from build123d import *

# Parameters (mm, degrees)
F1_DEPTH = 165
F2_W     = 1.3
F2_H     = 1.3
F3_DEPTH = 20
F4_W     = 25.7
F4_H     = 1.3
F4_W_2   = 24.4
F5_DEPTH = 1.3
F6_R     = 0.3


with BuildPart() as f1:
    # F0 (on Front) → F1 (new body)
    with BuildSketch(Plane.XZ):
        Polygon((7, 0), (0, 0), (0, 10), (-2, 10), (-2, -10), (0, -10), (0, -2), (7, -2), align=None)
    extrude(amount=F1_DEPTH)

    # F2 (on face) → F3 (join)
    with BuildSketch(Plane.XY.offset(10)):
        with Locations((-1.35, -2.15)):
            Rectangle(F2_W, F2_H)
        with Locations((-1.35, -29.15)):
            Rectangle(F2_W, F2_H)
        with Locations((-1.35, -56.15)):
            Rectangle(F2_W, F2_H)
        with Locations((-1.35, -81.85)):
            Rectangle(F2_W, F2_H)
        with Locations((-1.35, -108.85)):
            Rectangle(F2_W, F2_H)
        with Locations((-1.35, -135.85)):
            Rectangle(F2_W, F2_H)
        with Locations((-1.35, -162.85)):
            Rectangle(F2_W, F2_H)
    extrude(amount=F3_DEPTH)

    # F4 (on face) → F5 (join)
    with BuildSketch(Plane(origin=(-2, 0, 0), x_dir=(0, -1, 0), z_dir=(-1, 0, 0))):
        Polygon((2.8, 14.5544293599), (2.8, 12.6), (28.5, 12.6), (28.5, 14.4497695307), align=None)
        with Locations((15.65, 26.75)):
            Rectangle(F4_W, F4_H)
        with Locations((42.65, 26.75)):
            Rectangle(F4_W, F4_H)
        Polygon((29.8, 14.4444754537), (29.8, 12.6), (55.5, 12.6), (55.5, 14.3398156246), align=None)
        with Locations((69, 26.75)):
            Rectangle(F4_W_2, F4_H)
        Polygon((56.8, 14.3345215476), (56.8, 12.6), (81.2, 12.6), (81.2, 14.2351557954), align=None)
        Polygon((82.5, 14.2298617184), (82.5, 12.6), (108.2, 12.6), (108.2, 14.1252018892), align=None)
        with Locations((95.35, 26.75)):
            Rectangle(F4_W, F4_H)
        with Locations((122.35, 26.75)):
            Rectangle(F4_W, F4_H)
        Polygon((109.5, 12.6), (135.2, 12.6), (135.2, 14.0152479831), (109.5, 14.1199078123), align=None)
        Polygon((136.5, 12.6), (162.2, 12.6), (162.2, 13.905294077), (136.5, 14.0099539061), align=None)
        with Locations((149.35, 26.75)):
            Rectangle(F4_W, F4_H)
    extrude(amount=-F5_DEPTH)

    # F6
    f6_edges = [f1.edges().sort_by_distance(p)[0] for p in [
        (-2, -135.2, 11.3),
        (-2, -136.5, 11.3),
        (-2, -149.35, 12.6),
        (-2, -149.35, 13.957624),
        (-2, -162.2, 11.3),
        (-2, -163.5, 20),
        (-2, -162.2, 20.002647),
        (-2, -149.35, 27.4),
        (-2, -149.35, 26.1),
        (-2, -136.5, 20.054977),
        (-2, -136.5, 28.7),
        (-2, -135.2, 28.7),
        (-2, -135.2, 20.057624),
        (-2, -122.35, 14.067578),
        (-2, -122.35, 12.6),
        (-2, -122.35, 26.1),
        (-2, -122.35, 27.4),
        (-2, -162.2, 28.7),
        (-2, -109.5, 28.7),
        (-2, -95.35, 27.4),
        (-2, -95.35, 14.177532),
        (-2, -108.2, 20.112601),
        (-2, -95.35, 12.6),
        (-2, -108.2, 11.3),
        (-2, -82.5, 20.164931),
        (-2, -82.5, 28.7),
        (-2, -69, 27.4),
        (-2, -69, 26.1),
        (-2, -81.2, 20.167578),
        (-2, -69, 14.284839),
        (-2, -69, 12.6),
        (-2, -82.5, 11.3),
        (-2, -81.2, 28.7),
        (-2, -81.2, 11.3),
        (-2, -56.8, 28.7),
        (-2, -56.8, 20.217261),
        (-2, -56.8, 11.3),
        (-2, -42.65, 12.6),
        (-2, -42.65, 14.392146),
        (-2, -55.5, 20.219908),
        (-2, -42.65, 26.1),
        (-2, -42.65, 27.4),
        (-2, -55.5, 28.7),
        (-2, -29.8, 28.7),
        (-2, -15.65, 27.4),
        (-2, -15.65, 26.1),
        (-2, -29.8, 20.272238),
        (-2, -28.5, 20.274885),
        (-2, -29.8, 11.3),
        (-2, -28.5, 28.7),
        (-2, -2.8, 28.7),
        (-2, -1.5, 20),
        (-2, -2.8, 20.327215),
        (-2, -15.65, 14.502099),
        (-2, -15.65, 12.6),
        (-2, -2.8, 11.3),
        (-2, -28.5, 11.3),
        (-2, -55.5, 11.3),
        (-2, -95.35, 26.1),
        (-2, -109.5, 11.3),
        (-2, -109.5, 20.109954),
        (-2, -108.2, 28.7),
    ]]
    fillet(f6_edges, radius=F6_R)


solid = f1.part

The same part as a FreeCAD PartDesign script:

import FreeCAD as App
import Part
import Sketcher
from FreeCAD import Vector
Q = App.Units.Quantity


def edges_at(feature, points):
    """Names of the edges that pass closest to the given points."""
    edges = feature.Shape.Edges
    near = lambda p: min(range(len(edges)), key=lambda i: edges[i].distToShape(Part.Vertex(*p))[0])
    return sorted({f"Edge{near(p) + 1}" for p in points})


def add_polygon(sketch, points):
    """Adds a closed chain of lines whose ends are joined by coincident constraints."""
    first, n = sketch.GeometryCount, len(points)
    for a, b in zip(points, points[1:] + points[:1]):
        sketch.addGeometry(Part.LineSegment(App.Vector(*a, 0), App.Vector(*b, 0)), False)
    for i in range(n):
        sketch.addConstraint(Sketcher.Constraint("Coincident", first + i, 2, first + (i + 1) % n, 1))

doc = App.newDocument("Part")
params = doc.addObject("Spreadsheet::Sheet", "Params")
for row, (alias, value) in enumerate([
    ("sketch1_width", "7 mm"),
    ("sketch1_width2", "2 mm"),
    ("sketch1_height", "10 mm"),
    ("pad1_length", "165 mm"),
    ("sketch2_width", "1.3 mm"),
    ("pad2_length", "20 mm"),
    ("sketch3_width", "25.7 mm"),
    ("sketch3_width2", "24.4 mm"),
    ("sketch3_height", "1.3 mm"),
    ("pad3_length", "1.3 mm"),
    ("fillet_radius", "0.3 mm"),
], start=1):
    params.set(f"A{row}", alias)
    params.set(f"B{row}", "=" + value)
    params.setAlias(f"B{row}", alias)

body = doc.addObject("PartDesign::Body", "Body")

sketch1 = doc.addObject("Sketcher::SketchObject", "Sketch")
body.addObject(sketch1)
sketch1.AttachmentSupport = (doc.XZ_Plane, [""])
sketch1.MapMode = "FlatFace"
add_polygon(sketch1, [(7, 0), (0, 0), (0, 10), (-2, 10), (-2, -10), (0, -10), (0, -2), (7, -2)])
sketch1.addConstraint(Sketcher.Constraint("Horizontal", 0))
sketch1.addConstraint(Sketcher.Constraint("Vertical", 1))
sketch1.addConstraint(Sketcher.Constraint("Horizontal", 2))
sketch1.addConstraint(Sketcher.Constraint("Vertical", 3))
sketch1.addConstraint(Sketcher.Constraint("Horizontal", 4))
sketch1.addConstraint(Sketcher.Constraint("Vertical", 5))
sketch1.addConstraint(Sketcher.Constraint("Horizontal", 6))
sketch1.addConstraint(Sketcher.Constraint("Vertical", 7))
sketch1.addConstraint(Sketcher.Constraint("Coincident", 0, 2, -1, 1))
sketch1.addConstraint(Sketcher.Constraint("Symmetric", 1, 2, 4, 2, -1, 1))
sketch1.addConstraint(Sketcher.Constraint("Equal", 4, 7))
sketch1.addConstraint(Sketcher.Constraint("DistanceX", 0, 2, 0, 1, Q("7 mm")))
sketch1.addConstraint(Sketcher.Constraint("DistanceX", 2, 2, 2, 1, Q("2 mm")))
sketch1.addConstraint(Sketcher.Constraint("DistanceY", 1, 1, 1, 2, Q("10 mm")))
sketch1.setExpression("Constraints[19]", "Params.sketch1_width")
sketch1.setExpression("Constraints[20]", "Params.sketch1_width2")
sketch1.setExpression("Constraints[21]", "Params.sketch1_height")
pad1 = doc.addObject("PartDesign::Pad", "Pad")
body.addObject(pad1)
pad1.Profile = sketch1
pad1.setExpression("Length", "Params.pad1_length")

sketch2 = doc.addObject("Sketcher::SketchObject", "Sketch001")
body.addObject(sketch2)
sketch2.AttachmentSupport = (doc.XY_Plane, [""])
sketch2.MapMode = "FlatFace"
sketch2.AttachmentOffset = App.Placement(Vector(0, 0, 10), App.Rotation())
add_polygon(sketch2, [(-2, -1.5), (-2, -2.8), (-0.7, -2.8), (-0.7, -1.5)])
add_polygon(sketch2, [(-2, -28.5), (-2, -29.8), (-0.7, -29.8), (-0.7, -28.5)])
add_polygon(sketch2, [(-2, -55.5), (-2, -56.8), (-0.7, -56.8), (-0.7, -55.5)])
add_polygon(sketch2, [(-2, -81.2), (-2, -82.5), (-0.7, -82.5), (-0.7, -81.2)])
add_polygon(sketch2, [(-2, -108.2), (-2, -109.5), (-0.7, -109.5), (-0.7, -108.2)])
add_polygon(sketch2, [(-2, -135.2), (-2, -136.5), (-0.7, -136.5), (-0.7, -135.2)])
add_polygon(sketch2, [(-2, -162.2), (-2, -163.5), (-0.7, -163.5), (-0.7, -162.2)])
sketch2.addConstraint(Sketcher.Constraint("Vertical", 0))
sketch2.addConstraint(Sketcher.Constraint("Horizontal", 1))
sketch2.addConstraint(Sketcher.Constraint("Vertical", 2))
sketch2.addConstraint(Sketcher.Constraint("Horizontal", 3))
sketch2.addConstraint(Sketcher.Constraint("Vertical", 4))
sketch2.addConstraint(Sketcher.Constraint("Horizontal", 5))
sketch2.addConstraint(Sketcher.Constraint("Vertical", 6))
sketch2.addConstraint(Sketcher.Constraint("Horizontal", 7))
sketch2.addConstraint(Sketcher.Constraint("Vertical", 8))
sketch2.addConstraint(Sketcher.Constraint("Horizontal", 9))
sketch2.addConstraint(Sketcher.Constraint("Vertical", 10))
sketch2.addConstraint(Sketcher.Constraint("Horizontal", 11))
sketch2.addConstraint(Sketcher.Constraint("Vertical", 12))
sketch2.addConstraint(Sketcher.Constraint("Horizontal", 13))
sketch2.addConstraint(Sketcher.Constraint("Vertical", 14))
sketch2.addConstraint(Sketcher.Constraint("Horizontal", 15))
sketch2.addConstraint(Sketcher.Constraint("Vertical", 16))
sketch2.addConstraint(Sketcher.Constraint("Horizontal", 17))
sketch2.addConstraint(Sketcher.Constraint("Vertical", 18))
sketch2.addConstraint(Sketcher.Constraint("Horizontal", 19))
sketch2.addConstraint(Sketcher.Constraint("Vertical", 20))
sketch2.addConstraint(Sketcher.Constraint("Horizontal", 21))
sketch2.addConstraint(Sketcher.Constraint("Vertical", 22))
sketch2.addConstraint(Sketcher.Constraint("Horizontal", 23))
sketch2.addConstraint(Sketcher.Constraint("Vertical", 24))
sketch2.addConstraint(Sketcher.Constraint("Horizontal", 25))
sketch2.addConstraint(Sketcher.Constraint("Vertical", 26))
sketch2.addConstraint(Sketcher.Constraint("Horizontal", 27))
sketch2.addConstraint(Sketcher.Constraint("Vertical", 3, 2, 4, 2))
sketch2.addConstraint(Sketcher.Constraint("Vertical", 2, 2, 5, 2))
sketch2.addConstraint(Sketcher.Constraint("Vertical", 7, 2, 8, 2))
sketch2.addConstraint(Sketcher.Constraint("Vertical", 6, 2, 9, 2))
sketch2.addConstraint(Sketcher.Constraint("Vertical", 11, 2, 12, 2))
sketch2.addConstraint(Sketcher.Constraint("Vertical", 10, 2, 13, 2))
sketch2.addConstraint(Sketcher.Constraint("Vertical", 15, 2, 16, 2))
sketch2.addConstraint(Sketcher.Constraint("Vertical", 14, 2, 17, 2))
sketch2.addConstraint(Sketcher.Constraint("Vertical", 19, 2, 20, 2))
sketch2.addConstraint(Sketcher.Constraint("Vertical", 18, 2, 21, 2))
sketch2.addConstraint(Sketcher.Constraint("Vertical", 23, 2, 24, 2))
sketch2.addConstraint(Sketcher.Constraint("Vertical", 22, 2, 25, 2))
sketch2.addConstraint(Sketcher.Constraint("Equal", 27, 0))
sketch2.addConstraint(Sketcher.Constraint("Equal", 2, 4))
sketch2.addConstraint(Sketcher.Constraint("Equal", 6, 8))
sketch2.addConstraint(Sketcher.Constraint("Equal", 10, 12))
sketch2.addConstraint(Sketcher.Constraint("Equal", 14, 16))
sketch2.addConstraint(Sketcher.Constraint("Equal", 18, 20))
sketch2.addConstraint(Sketcher.Constraint("Equal", 22, 24))
sketch2.addConstraint(Sketcher.Constraint("DistanceX", 1, 1, 1, 2, Q("1.3 mm")))
sketch2.addConstraint(Sketcher.Constraint("DistanceX", 0, 2, -1, 1, Q("2 mm")))
sketch2.addConstraint(Sketcher.Constraint("DistanceY", 4, 2, 0, 2, Q("27 mm")))
sketch2.addConstraint(Sketcher.Constraint("DistanceY", 8, 2, 4, 2, Q("27 mm")))
sketch2.addConstraint(Sketcher.Constraint("DistanceY", 12, 2, 11, 2, Q("27 mm")))
sketch2.addConstraint(Sketcher.Constraint("DistanceY", 16, 2, 12, 2, Q("27 mm")))
sketch2.addConstraint(Sketcher.Constraint("DistanceY", 20, 2, 16, 2, Q("27 mm")))
sketch2.addConstraint(Sketcher.Constraint("DistanceY", 24, 2, 20, 2, Q("27 mm")))
sketch2.addConstraint(Sketcher.Constraint("DistanceY", 0, 2, -1, 1, Q("2.8 mm")))
sketch2.setExpression("Constraints[75]", "Params.sketch2_width")
pad2 = doc.addObject("PartDesign::Pad", "Pad001")
body.addObject(pad2)
pad2.Profile = sketch2
pad2.setExpression("Length", "Params.pad2_length")

sketch3 = doc.addObject("Sketcher::SketchObject", "Sketch002")
body.addObject(sketch3)
sketch3.AttachmentSupport = (doc.YZ_Plane, [""])
sketch3.MapMode = "FlatFace"
sketch3.AttachmentOffset = App.Placement(Vector(0, 0, -2), App.Rotation())
add_polygon(sketch3, [(-2.8, 14.6), (-2.8, 12.6), (-28.5, 12.6), (-28.5, 14.4)])
add_polygon(sketch3, [(-2.8, 27.4), (-2.8, 26.1), (-28.5, 26.1), (-28.5, 27.4)])
add_polygon(sketch3, [(-29.8, 27.4), (-29.8, 26.1), (-55.5, 26.1), (-55.5, 27.4)])
add_polygon(sketch3, [(-29.8, 14.4), (-29.8, 12.6), (-55.5, 12.6), (-55.5, 14.3)])
add_polygon(sketch3, [(-56.8, 27.4), (-56.8, 26.1), (-81.2, 26.1), (-81.2, 27.4)])
add_polygon(sketch3, [(-56.8, 14.3), (-56.8, 12.6), (-81.2, 12.6), (-81.2, 14.2)])
add_polygon(sketch3, [(-82.5, 14.2), (-82.5, 12.6), (-108.2, 12.6), (-108.2, 14.1)])
add_polygon(sketch3, [(-82.5, 27.4), (-82.5, 26.1), (-108.2, 26.1), (-108.2, 27.4)])
add_polygon(sketch3, [(-109.5, 27.4), (-109.5, 26.1), (-135.2, 26.1), (-135.2, 27.4)])
add_polygon(sketch3, [(-109.5, 12.6), (-135.2, 12.6), (-135.2, 14), (-109.5, 14.1)])
add_polygon(sketch3, [(-136.5, 12.6), (-162.2, 12.6), (-162.2, 13.9), (-136.5, 14)])
add_polygon(sketch3, [(-136.5, 27.4), (-136.5, 26.1), (-162.2, 26.1), (-162.2, 27.4)])
sketch3.addConstraint(Sketcher.Constraint("Vertical", 0))
sketch3.addConstraint(Sketcher.Constraint("Horizontal", 1))
sketch3.addConstraint(Sketcher.Constraint("Vertical", 2))
sketch3.addConstraint(Sketcher.Constraint("Vertical", 4))
sketch3.addConstraint(Sketcher.Constraint("Horizontal", 5))
sketch3.addConstraint(Sketcher.Constraint("Vertical", 6))
sketch3.addConstraint(Sketcher.Constraint("Horizontal", 7))
sketch3.addConstraint(Sketcher.Constraint("Vertical", 8))
sketch3.addConstraint(Sketcher.Constraint("Horizontal", 9))
sketch3.addConstraint(Sketcher.Constraint("Vertical", 10))
sketch3.addConstraint(Sketcher.Constraint("Horizontal", 11))
sketch3.addConstraint(Sketcher.Constraint("Vertical", 12))
sketch3.addConstraint(Sketcher.Constraint("Horizontal", 13))
sketch3.addConstraint(Sketcher.Constraint("Vertical", 14))
sketch3.addConstraint(Sketcher.Constraint("Vertical", 16))
sketch3.addConstraint(Sketcher.Constraint("Horizontal", 17))
sketch3.addConstraint(Sketcher.Constraint("Vertical", 18))
sketch3.addConstraint(Sketcher.Constraint("Horizontal", 19))
sketch3.addConstraint(Sketcher.Constraint("Vertical", 20))
sketch3.addConstraint(Sketcher.Constraint("Horizontal", 21))
sketch3.addConstraint(Sketcher.Constraint("Vertical", 22))
sketch3.addConstraint(Sketcher.Constraint("Vertical", 24))
sketch3.addConstraint(Sketcher.Constraint("Horizontal", 25))
sketch3.addConstraint(Sketcher.Constraint("Vertical", 26))
sketch3.addConstraint(Sketcher.Constraint("Vertical", 28))
sketch3.addConstraint(Sketcher.Constraint("Horizontal", 29))
sketch3.addConstraint(Sketcher.Constraint("Vertical", 30))
sketch3.addConstraint(Sketcher.Constraint("Horizontal", 31))
sketch3.addConstraint(Sketcher.Constraint("Vertical", 32))
sketch3.addConstraint(Sketcher.Constraint("Horizontal", 33))
sketch3.addConstraint(Sketcher.Constraint("Vertical", 34))
sketch3.addConstraint(Sketcher.Constraint("Horizontal", 35))
sketch3.addConstraint(Sketcher.Constraint("Horizontal", 36))
sketch3.addConstraint(Sketcher.Constraint("Vertical", 37))
sketch3.addConstraint(Sketcher.Constraint("Vertical", 39))
sketch3.addConstraint(Sketcher.Constraint("Horizontal", 40))
sketch3.addConstraint(Sketcher.Constraint("Vertical", 41))
sketch3.addConstraint(Sketcher.Constraint("Vertical", 43))
sketch3.addConstraint(Sketcher.Constraint("Vertical", 44))
sketch3.addConstraint(Sketcher.Constraint("Horizontal", 45))
sketch3.addConstraint(Sketcher.Constraint("Vertical", 46))
sketch3.addConstraint(Sketcher.Constraint("Horizontal", 47))
sketch3.addConstraint(Sketcher.Constraint("Parallel", 3, 15))
sketch3.addConstraint(Sketcher.Constraint("Parallel", 15, 23))
sketch3.addConstraint(Sketcher.Constraint("Parallel", 23, 27))
sketch3.addConstraint(Sketcher.Constraint("Parallel", 27, 38))
sketch3.addConstraint(Sketcher.Constraint("Parallel", 38, 42))
sketch3.addConstraint(Sketcher.Constraint("Horizontal", 5, 2, 8, 2))
sketch3.addConstraint(Sketcher.Constraint("Horizontal", 7, 2, 10, 2))
sketch3.addConstraint(Sketcher.Constraint("Horizontal", 1, 2, 12, 2))
sketch3.addConstraint(Sketcher.Constraint("Horizontal", 9, 2, 16, 2))
sketch3.addConstraint(Sketcher.Constraint("Horizontal", 11, 2, 18, 2))
sketch3.addConstraint(Sketcher.Constraint("Horizontal", 13, 2, 20, 2))
sketch3.addConstraint(Sketcher.Constraint("Horizontal", 21, 2, 24, 2))
sketch3.addConstraint(Sketcher.Constraint("Horizontal", 17, 2, 28, 2))
sketch3.addConstraint(Sketcher.Constraint("Horizontal", 19, 2, 30, 2))
sketch3.addConstraint(Sketcher.Constraint("Horizontal", 29, 2, 32, 2))
sketch3.addConstraint(Sketcher.Constraint("Horizontal", 31, 2, 34, 2))
sketch3.addConstraint(Sketcher.Constraint("Horizontal", 25, 2, 36, 2))
sketch3.addConstraint(Sketcher.Constraint("Horizontal", 39, 2, 40, 2))
sketch3.addConstraint(Sketcher.Constraint("Horizontal", 33, 2, 44, 2))
sketch3.addConstraint(Sketcher.Constraint("Horizontal", 35, 2, 46, 2))
sketch3.addConstraint(Sketcher.Constraint("Vertical", 3, 2, 4, 2))
sketch3.addConstraint(Sketcher.Constraint("Vertical", 2, 2, 5, 2))
sketch3.addConstraint(Sketcher.Constraint("Vertical", 11, 2, 12, 2))
sketch3.addConstraint(Sketcher.Constraint("Vertical", 10, 2, 13, 2))
sketch3.addConstraint(Sketcher.Constraint("Vertical", 19, 2, 20, 2))
sketch3.addConstraint(Sketcher.Constraint("Vertical", 18, 2, 21, 2))
sketch3.addConstraint(Sketcher.Constraint("Vertical", 27, 2, 28, 2))
sketch3.addConstraint(Sketcher.Constraint("Vertical", 26, 2, 29, 2))
sketch3.addConstraint(Sketcher.Constraint("Vertical", 34, 2, 36, 2))
sketch3.addConstraint(Sketcher.Constraint("Vertical", 35, 2, 38, 2))
sketch3.addConstraint(Sketcher.Constraint("Vertical", 43, 2, 44, 2))
sketch3.addConstraint(Sketcher.Constraint("Vertical", 41, 2, 45, 2))
sketch3.addConstraint(Sketcher.Constraint("Equal", 7, 9))
sketch3.addConstraint(Sketcher.Constraint("Equal", 13, 25))
sketch3.addConstraint(Sketcher.Constraint("Equal", 31, 33))
sketch3.addConstraint(Sketcher.Constraint("Equal", 36, 40))
sketch3.addConstraint(Sketcher.Constraint("DistanceX", 1, 2, 1, 1, Q("25.7 mm")))
sketch3.addConstraint(Sketcher.Constraint("DistanceX", 17, 2, 17, 1, Q("24.4 mm")))
sketch3.addConstraint(Sketcher.Constraint("DistanceY", 4, 2, 4, 1, Q("1.3 mm")))
sketch3.addConstraint(Sketcher.Constraint("DistanceX", 8, 2, 4, 2, Q("27 mm")))
sketch3.addConstraint(Sketcher.Constraint("DistanceX", 16, 2, 8, 2, Q("27 mm")))
sketch3.addConstraint(Sketcher.Constraint("DistanceX", 25, 2, 21, 2, Q("27 mm")))
sketch3.addConstraint(Sketcher.Constraint("DistanceX", 32, 2, 28, 2, Q("27 mm")))
sketch3.addConstraint(Sketcher.Constraint("DistanceX", 40, 2, 36, 2, Q("27 mm")))
sketch3.addConstraint(Sketcher.Constraint("DistanceX", 0, 2, -1, 1, Q("2.8 mm")))
sketch3.addConstraint(Sketcher.Constraint("DistanceY", -1, 1, 0, 2, Q("12.6 mm")))
sketch3.addConstraint(Sketcher.Constraint("DistanceY", -1, 1, 4, 2, Q("26.1 mm")))
sketch3.addConstraint(Sketcher.Constraint("DistanceY", 26, 1, 26, 2, Q("1.525202 mm")))
sketch3.addConstraint(Sketcher.Constraint("DistanceY", 0, 2, 0, 1, Q("1.954429 mm")))
sketch3.addConstraint(Sketcher.Constraint("DistanceY", 2, 1, 2, 2, Q("1.84977 mm")))
sketch3.addConstraint(Sketcher.Constraint("DistanceY", 20, 2, 20, 1, Q("1.734522 mm")))
sketch3.addConstraint(Sketcher.Constraint("DistanceY", 12, 2, 12, 1, Q("1.844475 mm")))
sketch3.addConstraint(Sketcher.Constraint("DistanceY", 37, 1, 37, 2, Q("1.415248 mm")))
sketch3.addConstraint(Sketcher.Constraint("DistanceY", 41, 1, 41, 2, Q("1.305294 mm")))
sketch3.setExpression("Constraints[126]", "Params.sketch3_width")
sketch3.setExpression("Constraints[127]", "Params.sketch3_width2")
sketch3.setExpression("Constraints[128]", "Params.sketch3_height")
pad3 = doc.addObject("PartDesign::Pad", "Pad002")
body.addObject(pad3)
pad3.Profile = sketch3
pad3.setExpression("Length", "Params.pad3_length")
doc.recompute()

fillet = doc.addObject("PartDesign::Fillet", "Fillet")
body.addObject(fillet)
fillet.Base = (pad3, edges_at(pad3, [
    (-2, -135.2, 11.3),
    (-2, -136.5, 11.3),
    (-2, -149.35, 12.6),
    (-2, -149.35, 13.958),
    (-2, -162.2, 11.3),
    (-2, -163.5, 20),
    (-2, -162.2, 20.003),
    (-2, -149.35, 27.4),
    (-2, -149.35, 26.1),
    (-2, -136.5, 20.055),
    (-2, -136.5, 28.7),
    (-2, -135.2, 28.7),
    (-2, -135.2, 20.058),
    (-2, -122.35, 14.068),
    (-2, -122.35, 12.6),
    (-2, -122.35, 26.1),
    (-2, -122.35, 27.4),
    (-2, -162.2, 28.7),
    (-2, -109.5, 28.7),
    (-2, -95.35, 27.4),
    (-2, -95.35, 14.178),
    (-2, -108.2, 20.113),
    (-2, -95.35, 12.6),
    (-2, -108.2, 11.3),
    (-2, -82.5, 20.165),
    (-2, -82.5, 28.7),
    (-2, -69, 27.4),
    (-2, -69, 26.1),
    (-2, -81.2, 20.168),
    (-2, -69, 14.285),
    (-2, -69, 12.6),
    (-2, -82.5, 11.3),
    (-2, -81.2, 28.7),
    (-2, -81.2, 11.3),
    (-2, -56.8, 28.7),
    (-2, -56.8, 20.217),
    (-2, -56.8, 11.3),
    (-2, -42.65, 12.6),
    (-2, -42.65, 14.392),
    (-2, -55.5, 20.22),
    (-2, -42.65, 26.1),
    (-2, -42.65, 27.4),
    (-2, -55.5, 28.7),
    (-2, -29.8, 28.7),
    (-2, -15.65, 27.4),
    (-2, -15.65, 26.1),
    (-2, -29.8, 20.272),
    (-2, -28.5, 20.275),
    (-2, -29.8, 11.3),
    (-2, -28.5, 28.7),
    (-2, -2.8, 28.7),
    (-2, -1.5, 20),
    (-2, -2.8, 20.327),
    (-2, -15.65, 14.502),
    (-2, -15.65, 12.6),
    (-2, -2.8, 11.3),
    (-2, -28.5, 11.3),
    (-2, -55.5, 11.3),
    (-2, -95.35, 26.1),
    (-2, -109.5, 11.3),
    (-2, -109.5, 20.11),
    (-2, -108.2, 28.7),
]))
fillet.setExpression("Radius", "Params.fillet_radius")

doc.recompute()
